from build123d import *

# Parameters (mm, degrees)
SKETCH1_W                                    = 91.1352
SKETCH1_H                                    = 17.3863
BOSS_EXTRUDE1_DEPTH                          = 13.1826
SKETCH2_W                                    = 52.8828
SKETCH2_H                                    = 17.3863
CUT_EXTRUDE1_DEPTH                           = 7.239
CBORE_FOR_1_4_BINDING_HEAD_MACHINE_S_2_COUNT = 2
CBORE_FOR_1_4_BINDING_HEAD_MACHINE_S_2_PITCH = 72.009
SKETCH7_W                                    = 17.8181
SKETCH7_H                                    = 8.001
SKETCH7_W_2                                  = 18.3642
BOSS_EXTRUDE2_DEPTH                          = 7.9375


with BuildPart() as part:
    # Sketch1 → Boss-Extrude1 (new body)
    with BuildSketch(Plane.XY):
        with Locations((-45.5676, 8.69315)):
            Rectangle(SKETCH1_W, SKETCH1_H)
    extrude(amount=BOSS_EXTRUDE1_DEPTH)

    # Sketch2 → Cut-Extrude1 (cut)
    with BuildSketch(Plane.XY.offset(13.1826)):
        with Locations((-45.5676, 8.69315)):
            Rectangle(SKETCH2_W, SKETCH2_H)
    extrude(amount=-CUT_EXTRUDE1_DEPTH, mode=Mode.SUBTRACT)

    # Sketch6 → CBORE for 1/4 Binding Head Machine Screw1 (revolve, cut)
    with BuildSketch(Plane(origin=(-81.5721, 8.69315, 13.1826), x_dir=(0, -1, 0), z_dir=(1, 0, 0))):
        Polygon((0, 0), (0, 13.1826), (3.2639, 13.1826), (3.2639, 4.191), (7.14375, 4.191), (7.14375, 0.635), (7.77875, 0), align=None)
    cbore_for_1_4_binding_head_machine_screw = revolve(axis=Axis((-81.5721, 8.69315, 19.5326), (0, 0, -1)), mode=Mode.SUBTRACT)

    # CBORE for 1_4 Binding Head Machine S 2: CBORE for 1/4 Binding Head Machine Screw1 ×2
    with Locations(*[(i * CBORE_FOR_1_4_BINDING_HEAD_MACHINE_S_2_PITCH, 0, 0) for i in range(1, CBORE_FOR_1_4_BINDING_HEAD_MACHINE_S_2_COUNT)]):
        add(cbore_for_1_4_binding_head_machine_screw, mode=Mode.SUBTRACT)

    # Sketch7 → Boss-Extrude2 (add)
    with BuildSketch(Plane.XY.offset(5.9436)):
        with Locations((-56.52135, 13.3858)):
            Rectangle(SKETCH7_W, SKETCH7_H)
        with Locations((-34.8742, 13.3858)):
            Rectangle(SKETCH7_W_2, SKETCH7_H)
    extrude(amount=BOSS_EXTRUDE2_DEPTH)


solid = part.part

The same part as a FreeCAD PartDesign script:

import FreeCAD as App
import Part
import Sketcher
from FreeCAD import Vector
Q = App.Units.Quantity

doc = App.newDocument("Part")
body = doc.addObject("PartDesign::Body", "Body")

sketch1 = body.newObject("Sketcher::SketchObject", "Sketch")
sketch1.AttachmentSupport = (doc.getObject("XY_Plane"), [""])
sketch1.MapMode = "FlatFace"
sketch1.addGeometry([
    Part.LineSegment(Vector(-91, 17, 0), Vector(-91, 0, 0)),
    Part.LineSegment(Vector(-91, 0, 0), Vector(0, 0, 0)),
    Part.LineSegment(Vector(0, 0, 0), Vector(0, 17, 0)),
    Part.LineSegment(Vector(0, 17, 0), Vector(-91, 17, 0)),
], False)
sketch1.addConstraint([
    Sketcher.Constraint("Coincident", 0, 2, 1, 1),
    Sketcher.Constraint("Coincident", 1, 2, 2, 1),
    Sketcher.Constraint("Coincident", 2, 2, 3, 1),
    Sketcher.Constraint("Coincident", 3, 2, 0, 1),
    Sketcher.Constraint("Vertical", 0),
    Sketcher.Constraint("Horizontal", 1),
    Sketcher.Constraint("Vertical", 2),
    Sketcher.Constraint("Horizontal", 3),
    Sketcher.Constraint("Coincident", 1, 2, -1, 1),
    Sketcher.Constraint("DistanceX", 1, 1, 1, 2, Q("3.588 in")),
    Sketcher.Constraint("DistanceY", 0, 2, 0, 1, Q("0.6845 in")),
])
pad1 = body.newObject("PartDesign::Pad", "Pad")
pad1.Profile = sketch1
pad1.Length = Q("0.519 in")

sketch2 = body.newObject("Sketcher::SketchObject", "Sketch001")
sketch2.AttachmentSupport = (doc.getObject("XY_Plane"), [""])
sketch2.MapMode = "FlatFace"
sketch2.AttachmentOffset = App.Placement(Vector(0, 0, 0.519 * 25.4), App.Rotation())
sketch2.addGeometry([
    Part.LineSegment(Vector(-72, 17, 0), Vector(-72, 0, 0)),
    Part.LineSegment(Vector(-72, 0, 0), Vector(-19, 0, 0)),
    Part.LineSegment(Vector(-19, 0, 0), Vector(-19, 17, 0)),
    Part.LineSegment(Vector(-19, 17, 0), Vector(-72, 17, 0)),
], False)
sketch2.addConstraint([
    Sketcher.Constraint("Coincident", 0, 2, 1, 1),
    Sketcher.Constraint("Coincident", 1, 2, 2, 1),
    Sketcher.Constraint("Coincident", 2, 2, 3, 1),
    Sketcher.Constraint("Coincident", 3, 2, 0, 1),
    Sketcher.Constraint("Vertical", 0),
    Sketcher.Constraint("Horizontal", 1),
    Sketcher.Constraint("Vertical", 2),
    Sketcher.Constraint("Horizontal", 3),
    Sketcher.Constraint("PointOnObject", 0, 2, -1),
    Sketcher.Constraint("DistanceX", 1, 1, 1, 2, Q("2.082 in")),
    Sketcher.Constraint("DistanceY", 0, 2, 0, 1, Q("0.6845 in")),
    Sketcher.Constraint("DistanceX", 0, 2, -1, 1, Q("2.835 in")),
])
pocket1 = body.newObject("PartDesign::Pocket", "Pocket")
pocket1.Profile = sketch2
pocket1.Length = Q("0.285 in")

sketch3 = body.newObject("Sketcher::SketchObject", "Sketch002")
sketch3.AttachmentSupport = (doc.getObject("YZ_Plane"), [""])
sketch3.MapMode = "FlatFace"
sketch3.AttachmentOffset = App.Placement(Vector(0, 0, -3.2115 * 25.4), App.Rotation())
sketch3.addGeometry([
    Part.LineSegment(Vector(8.7, 0, 0), Vector(8.7, 13.2, 0)),
    Part.LineSegment(Vector(8.7, 13.2, 0), Vector(0.9, 13.2, 0)),
    Part.LineSegment(Vector(0.9, 13.2, 0), Vector(1.5, 12.5, 0)),
    Part.LineSegment(Vector(1.5, 12.5, 0), Vector(1.5, 9, 0)),
    Part.LineSegment(Vector(1.5, 9, 0), Vector(5.4, 9, 0)),
    Part.LineSegment(Vector(5.4, 9, 0), Vector(5.4, 0, 0)),
    Part.LineSegment(Vector(5.4, 0, 0), Vector(8.7, 0, 0)),
], False)
sketch3.addGeometry(Part.LineSegment(Vector(8.7, 13.2, 0), Vector(8.7, 0, 0)), True)
sketch3.addConstraint([
    Sketcher.Constraint("Coincident", 0, 2, 1, 1),
    Sketcher.Constraint("Coincident", 1, 2, 2, 1),
    Sketcher.Constraint("Coincident", 2, 2, 3, 1),
    Sketcher.Constraint("Coincident", 3, 2, 4, 1),
    Sketcher.Constraint("Coincident", 4, 2, 5, 1),
    Sketcher.Constraint("Coincident", 5, 2, 6, 1),
    Sketcher.Constraint("Coincident", 6, 2, 0, 1),
    Sketcher.Constraint("Vertical", 0),
    Sketcher.Constraint("Horizontal", 1),
    Sketcher.Constraint("Vertical", 3),
    Sketcher.Constraint("Horizontal", 4),
    Sketcher.Constraint("Vertical", 5),
    Sketcher.Constraint("Horizontal", 6),
    Sketcher.Constraint("Vertical", 7),
    Sketcher.Constraint("Coincident", 7, 1, 0, 2),
    Sketcher.Constraint("PointOnObject", 5, 2, -1),
    Sketcher.Constraint("PointOnObject", 7, 2, -1),
    Sketcher.Constraint("Angle", 2, Q("-45 deg")),
    Sketcher.Constraint("DistanceY", 3, 2, 3, 1, Q("0.14 in")),
    Sketcher.Constraint("DistanceY", 0, 1, 0, 2, Q("0.519 in")),
    Sketcher.Constraint("DistanceY", 5, 2, 5, 1, Q("0.354 in")),
    Sketcher.Constraint("DistanceX", 6, 1, 6, 2, Q("0.1285 in")),
    Sketcher.Constraint("DistanceX", -1, 1, 1, 2, Q("0.036 in")),
    Sketcher.Constraint("DistanceX", 2, 2, 0, 2, Q("0.28125 in")),
])
groove = body.newObject("PartDesign::Groove", "Groove")
groove.Profile = sketch3
groove.ReferenceAxis = (sketch3, ["Axis0"])
groove.Angle = 360
doc.recompute()

linearpattern = body.newObject("PartDesign::LinearPattern", "LinearPattern")
linearpattern.Originals = [groove]
linearpattern.Direction = (doc.getObject("X_Axis"), [""])
linearpattern.Mode = "offset"
linearpattern.Offset = Q("2.835 in")
linearpattern.Occurrences = 2
body.Tip = linearpattern

sketch4 = body.newObject("Sketcher::SketchObject", "Sketch003")
sketch4.AttachmentSupport = (doc.getObject("XY_Plane"), [""])
sketch4.MapMode = "FlatFace"
sketch4.AttachmentOffset = App.Placement(Vector(0, 0, 0.234 * 25.4), App.Rotation())
sketch4.addGeometry([
    Part.LineSegment(Vector(-65, 17, 0), Vector(-65, 9, 0)),
    Part.LineSegment(Vector(-65, 9, 0), Vector(-48, 9, 0)),
    Part.LineSegment(Vector(-48, 9, 0), Vector(-48, 17, 0)),
    Part.LineSegment(Vector(-48, 17, 0), Vector(-65, 17, 0)),
    Part.LineSegment(Vector(-44, 17, 0), Vector(-44, 9, 0)),
    Part.LineSegment(Vector(-44, 9, 0), Vector(-26, 9, 0)),
    Part.LineSegment(Vector(-26, 9, 0), Vector(-26, 17, 0)),
    Part.LineSegment(Vector(-26, 17, 0), Vector(-44, 17, 0)),
], False)
sketch4.addConstraint([
    Sketcher.Constraint("Coincident", 0, 2, 1, 1),
    Sketcher.Constraint("Coincident", 1, 2, 2, 1),
    Sketcher.Constraint("Coincident", 2, 2, 3, 1),
    Sketcher.Constraint("Coincident", 3, 2, 0, 1),
    Sketcher.Constraint("Coincident", 4, 2, 5, 1),
    Sketcher.Constraint("Coincident", 5, 2, 6, 1),
    Sketcher.Constraint("Coincident", 6, 2, 7, 1),
    Sketcher.Constraint("Coincident", 7, 2, 4, 1),
    Sketcher.Constraint("Vertical", 0),
    Sketcher.Constraint("Horizontal", 1),
    Sketcher.Constraint("Vertical", 2),
    Sketcher.Constraint("Horizontal", 3),
    Sketcher.Constraint("Vertical", 4),
    Sketcher.Constraint("Horizontal", 5),
    Sketcher.Constraint("Vertical", 6),
    Sketcher.Constraint("Horizontal", 7),
    Sketcher.Constraint("Horizontal", 1, 2, 4, 2),
    Sketcher.Constraint("Horizontal", 3, 2, 6, 2),
    Sketcher.Constraint("DistanceX", 5, 1, 5, 2, Q("0.723 in")),
    Sketcher.Constraint("DistanceY", 0, 2, 0, 1, Q("0.315 in")),
    Sketcher.Constraint("DistanceX", 1, 2, 4, 2, Q("0.14 in")),
    Sketcher.Constraint("DistanceX", 1, 1, 1, 2, Q("0.7015 in")),
    Sketcher.Constraint("DistanceX", 0, 2, -1, 1, Q("2.576 in")),
    Sketcher.Constraint("DistanceY", -1, 1, 0, 2, Q("0.3695 in")),
])
pad2 = body.newObject("PartDesign::Pad", "Pad001")
pad2.Profile = sketch4
pad2.Length = Q("0.3125 in")

doc.recompute()
